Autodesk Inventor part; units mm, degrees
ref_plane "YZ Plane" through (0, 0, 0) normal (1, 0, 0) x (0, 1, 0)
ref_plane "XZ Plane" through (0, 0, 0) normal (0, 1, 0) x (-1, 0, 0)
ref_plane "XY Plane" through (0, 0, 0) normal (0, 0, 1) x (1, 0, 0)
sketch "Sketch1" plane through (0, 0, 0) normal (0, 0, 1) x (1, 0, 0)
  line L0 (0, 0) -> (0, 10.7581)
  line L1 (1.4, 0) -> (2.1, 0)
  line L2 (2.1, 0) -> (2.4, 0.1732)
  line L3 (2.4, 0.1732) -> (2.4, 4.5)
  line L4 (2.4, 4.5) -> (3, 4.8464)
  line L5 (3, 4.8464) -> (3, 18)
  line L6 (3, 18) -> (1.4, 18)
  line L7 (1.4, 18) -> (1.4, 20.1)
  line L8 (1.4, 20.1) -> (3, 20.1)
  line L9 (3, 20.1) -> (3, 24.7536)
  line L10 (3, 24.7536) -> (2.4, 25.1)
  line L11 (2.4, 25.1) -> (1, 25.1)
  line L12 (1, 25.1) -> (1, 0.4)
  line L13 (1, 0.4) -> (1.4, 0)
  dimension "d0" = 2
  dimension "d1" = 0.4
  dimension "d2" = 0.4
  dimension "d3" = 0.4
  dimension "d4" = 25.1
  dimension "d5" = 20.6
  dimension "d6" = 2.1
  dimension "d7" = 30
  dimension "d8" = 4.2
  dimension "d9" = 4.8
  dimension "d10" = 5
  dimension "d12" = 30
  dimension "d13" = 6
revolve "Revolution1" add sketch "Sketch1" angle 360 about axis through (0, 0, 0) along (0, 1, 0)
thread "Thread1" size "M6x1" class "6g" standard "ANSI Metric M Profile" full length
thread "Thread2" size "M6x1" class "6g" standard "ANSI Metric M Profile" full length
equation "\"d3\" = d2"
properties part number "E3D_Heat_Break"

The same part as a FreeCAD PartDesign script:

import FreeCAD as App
import Part
import Sketcher
Q = App.Units.Quantity

doc = App.newDocument("Part")
body = doc.addObject("PartDesign::Body", "Body")

sketch1 = body.newObject("Sketcher::SketchObject", "Sketch")
sketch1.AttachmentSupport = (doc.getObject("XY_Plane"), [""])
sketch1.MapMode = "FlatFace"
sketch1.addGeometry([
    Part.LineSegment(App.Vector(1, 0.4, 0), App.Vector(1.4, 0, 0)),
    Part.LineSegment(App.Vector(1.4, 0, 0), App.Vector(2.1, 0, 0)),
    Part.LineSegment(App.Vector(2.1, 0, 0), App.Vector(2.4, 0.17, 0)),
    Part.LineSegment(App.Vector(2.4, 0.17, 0), App.Vector(2.4, 4.5, 0)),
    Part.LineSegment(App.Vector(2.4, 4.5, 0), App.Vector(3, 4.85, 0)),
    Part.LineSegment(App.Vector(3, 4.85, 0), App.Vector(3, 18, 0)),
    Part.LineSegment(App.Vector(3, 18, 0), App.Vector(1.4, 18, 0)),
    Part.LineSegment(App.Vector(1.4, 18, 0), App.Vector(1.4, 20.1, 0)),
    Part.LineSegment(App.Vector(1.4, 20.1, 0), App.Vector(3, 20.1, 0)),
    Part.LineSegment(App.Vector(3, 20.1, 0), App.Vector(3, 24.75, 0)),
    Part.LineSegment(App.Vector(3, 24.75, 0), App.Vector(2.4, 25.1, 0)),
    Part.LineSegment(App.Vector(2.4, 25.1, 0), App.Vector(1, 25.1, 0)),
    Part.LineSegment(App.Vector(1, 25.1, 0), App.Vector(1, 0.4, 0)),
], False)
sketch1.addConstraint([
    Sketcher.Constraint("Coincident", 0, 2, 1, 1),
    Sketcher.Constraint("Coincident", 1, 2, 2, 1),
    Sketcher.Constraint("Coincident", 2, 2, 3, 1),
    Sketcher.Constraint("Coincident", 3, 2, 4, 1),
    Sketcher.Constraint("Coincident", 4, 2, 5, 1),
    Sketcher.Constraint("Coincident", 5, 2, 6, 1),
    Sketcher.Constraint("Coincident", 6, 2, 7, 1),
    Sketcher.Constraint("Coincident", 7, 2, 8, 1),
    Sketcher.Constraint("Coincident", 8, 2, 9, 1),
    Sketcher.Constraint("Coincident", 9, 2, 10, 1),
    Sketcher.Constraint("Coincident", 10, 2, 11, 1),
    Sketcher.Constraint("Coincident", 11, 2, 12, 1),
    Sketcher.Constraint("Coincident", 12, 2, 0, 1),
    Sketcher.Constraint("Horizontal", 1),
    Sketcher.Constraint("Vertical", 3),
    Sketcher.Constraint("Vertical", 5),
    Sketcher.Constraint("Horizontal", 6),
    Sketcher.Constraint("Vertical", 7),
    Sketcher.Constraint("Horizontal", 8),
    Sketcher.Constraint("Vertical", 9),
    Sketcher.Constraint("Horizontal", 11),
    Sketcher.Constraint("Vertical", 12),
    Sketcher.Constraint("PointOnObject", 0, 2, -1),
    Sketcher.Constraint("Parallel", 2, 4),
    Sketcher.Constraint("Vertical", 0, 2, 6, 2),
    Sketcher.Constraint("Vertical", 5, 2, 8, 2),
    Sketcher.Constraint("Vertical", 3, 2, 10, 2),
    Sketcher.Constraint("Equal", 4, 10),
    Sketcher.Constraint("DistanceY", 7, 1, 7, 2, Q("2.1 mm")),
    Sketcher.Constraint("DistanceY", 8, 2, 10, 2, Q("5 mm")),
    Sketcher.Constraint("DistanceX", 11, 2, 9, 2, Q("2 mm")),
    Sketcher.Constraint("DistanceX", -1, 1, 1, 2, Q("2.1 mm")),
    Sketcher.Constraint("DistanceY", -1, 1, 10, 2, Q("25.1 mm")),
    Sketcher.Constraint("DistanceY", -1, 1, 12, 2, Q("0.4 mm")),
    Sketcher.Constraint("DistanceX", 11, 2, 7, 2, Q("0.4 mm")),
    Sketcher.Constraint("Angle", 2, Q("29.9993 deg")),
    Sketcher.Constraint("DistanceX", 1, 1, 1, 2, Q("0.7 mm")),
    Sketcher.Constraint("DistanceX", 11, 2, 11, 1, Q("1.4 mm")),
    Sketcher.Constraint("DistanceY", -1, 1, 3, 2, Q("4.5 mm")),
])
revolution = body.newObject("PartDesign::Revolution", "Revolution")
revolution.Profile = sketch1
revolution.ReferenceAxis = (sketch1, ["V_Axis"])
revolution.Angle = 360

doc.recompute()
